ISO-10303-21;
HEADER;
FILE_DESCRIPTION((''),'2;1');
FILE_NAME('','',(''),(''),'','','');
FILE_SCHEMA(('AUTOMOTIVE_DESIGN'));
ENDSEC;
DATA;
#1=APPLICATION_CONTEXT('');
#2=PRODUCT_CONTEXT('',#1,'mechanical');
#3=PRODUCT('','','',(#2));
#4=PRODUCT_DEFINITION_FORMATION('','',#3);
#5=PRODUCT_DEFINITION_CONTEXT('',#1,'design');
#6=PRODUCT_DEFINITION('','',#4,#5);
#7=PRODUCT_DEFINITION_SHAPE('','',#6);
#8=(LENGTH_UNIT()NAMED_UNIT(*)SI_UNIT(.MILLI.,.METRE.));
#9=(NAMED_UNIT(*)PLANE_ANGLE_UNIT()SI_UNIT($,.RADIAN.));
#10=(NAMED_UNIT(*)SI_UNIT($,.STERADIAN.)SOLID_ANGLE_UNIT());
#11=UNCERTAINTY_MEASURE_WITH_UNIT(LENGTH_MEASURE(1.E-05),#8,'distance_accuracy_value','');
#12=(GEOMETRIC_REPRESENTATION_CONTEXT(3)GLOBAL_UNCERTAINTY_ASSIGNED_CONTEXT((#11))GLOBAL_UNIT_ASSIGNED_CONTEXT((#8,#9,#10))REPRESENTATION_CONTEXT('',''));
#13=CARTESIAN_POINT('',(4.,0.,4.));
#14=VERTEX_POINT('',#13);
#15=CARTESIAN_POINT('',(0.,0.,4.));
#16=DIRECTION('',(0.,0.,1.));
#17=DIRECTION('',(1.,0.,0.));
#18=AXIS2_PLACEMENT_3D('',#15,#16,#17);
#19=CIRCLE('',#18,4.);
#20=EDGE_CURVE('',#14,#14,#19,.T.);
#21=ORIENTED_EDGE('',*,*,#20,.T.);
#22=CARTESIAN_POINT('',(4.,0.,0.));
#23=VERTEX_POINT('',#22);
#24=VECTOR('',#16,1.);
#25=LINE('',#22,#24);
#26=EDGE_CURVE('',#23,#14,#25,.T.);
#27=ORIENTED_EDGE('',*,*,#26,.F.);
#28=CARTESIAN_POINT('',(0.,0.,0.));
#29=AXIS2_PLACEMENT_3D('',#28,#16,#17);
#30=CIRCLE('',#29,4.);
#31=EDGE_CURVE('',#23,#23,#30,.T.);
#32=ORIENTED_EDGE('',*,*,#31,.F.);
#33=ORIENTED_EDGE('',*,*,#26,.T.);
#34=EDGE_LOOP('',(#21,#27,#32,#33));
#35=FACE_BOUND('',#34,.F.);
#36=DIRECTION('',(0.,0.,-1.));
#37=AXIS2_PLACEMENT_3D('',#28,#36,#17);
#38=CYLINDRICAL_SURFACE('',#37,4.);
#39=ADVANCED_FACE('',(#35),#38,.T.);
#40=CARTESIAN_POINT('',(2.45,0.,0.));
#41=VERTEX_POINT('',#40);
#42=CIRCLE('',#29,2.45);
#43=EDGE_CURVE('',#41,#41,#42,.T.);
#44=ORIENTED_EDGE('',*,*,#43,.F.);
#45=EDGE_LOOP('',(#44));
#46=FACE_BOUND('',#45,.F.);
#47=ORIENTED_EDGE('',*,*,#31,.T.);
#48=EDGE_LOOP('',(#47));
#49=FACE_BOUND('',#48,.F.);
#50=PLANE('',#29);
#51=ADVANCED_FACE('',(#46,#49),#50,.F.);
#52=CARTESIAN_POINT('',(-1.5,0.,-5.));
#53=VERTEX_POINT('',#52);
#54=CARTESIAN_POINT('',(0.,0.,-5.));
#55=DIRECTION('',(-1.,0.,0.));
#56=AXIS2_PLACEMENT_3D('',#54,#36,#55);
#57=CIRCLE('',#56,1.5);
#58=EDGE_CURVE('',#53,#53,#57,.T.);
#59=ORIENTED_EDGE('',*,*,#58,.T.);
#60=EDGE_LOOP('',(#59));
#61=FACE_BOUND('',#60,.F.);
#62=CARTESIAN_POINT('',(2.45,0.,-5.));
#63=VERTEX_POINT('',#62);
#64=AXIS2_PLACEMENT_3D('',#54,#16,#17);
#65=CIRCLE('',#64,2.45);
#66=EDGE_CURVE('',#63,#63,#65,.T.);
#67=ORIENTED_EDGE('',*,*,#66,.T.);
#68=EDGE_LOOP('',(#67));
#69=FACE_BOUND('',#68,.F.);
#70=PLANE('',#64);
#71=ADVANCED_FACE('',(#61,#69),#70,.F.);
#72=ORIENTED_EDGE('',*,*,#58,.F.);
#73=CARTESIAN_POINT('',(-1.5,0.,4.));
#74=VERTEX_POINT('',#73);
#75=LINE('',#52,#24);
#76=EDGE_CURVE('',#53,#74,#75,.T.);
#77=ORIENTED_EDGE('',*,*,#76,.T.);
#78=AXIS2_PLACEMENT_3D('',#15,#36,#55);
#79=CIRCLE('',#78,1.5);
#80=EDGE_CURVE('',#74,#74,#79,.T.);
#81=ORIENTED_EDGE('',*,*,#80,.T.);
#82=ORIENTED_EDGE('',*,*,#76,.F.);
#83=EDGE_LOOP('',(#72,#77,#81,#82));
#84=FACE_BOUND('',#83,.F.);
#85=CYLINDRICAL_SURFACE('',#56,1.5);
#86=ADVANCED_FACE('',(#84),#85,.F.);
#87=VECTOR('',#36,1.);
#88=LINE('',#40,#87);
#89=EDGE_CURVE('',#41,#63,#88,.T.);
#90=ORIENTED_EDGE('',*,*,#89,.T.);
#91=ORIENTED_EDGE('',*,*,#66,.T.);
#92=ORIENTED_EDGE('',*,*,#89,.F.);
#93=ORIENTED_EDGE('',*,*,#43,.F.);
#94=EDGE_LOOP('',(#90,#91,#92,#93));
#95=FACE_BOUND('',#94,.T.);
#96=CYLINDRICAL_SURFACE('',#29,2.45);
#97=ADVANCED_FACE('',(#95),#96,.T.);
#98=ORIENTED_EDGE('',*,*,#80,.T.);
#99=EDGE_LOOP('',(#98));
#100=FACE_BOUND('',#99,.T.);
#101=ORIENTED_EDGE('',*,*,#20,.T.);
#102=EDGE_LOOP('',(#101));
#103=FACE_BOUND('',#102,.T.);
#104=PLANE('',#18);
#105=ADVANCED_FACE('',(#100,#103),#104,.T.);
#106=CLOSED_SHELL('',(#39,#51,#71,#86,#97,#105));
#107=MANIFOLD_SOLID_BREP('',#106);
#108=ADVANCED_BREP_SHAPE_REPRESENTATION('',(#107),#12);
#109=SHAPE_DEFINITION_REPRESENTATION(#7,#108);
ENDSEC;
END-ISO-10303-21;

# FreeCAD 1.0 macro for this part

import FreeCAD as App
import Part
import Sketcher

V = App.Vector

doc = App.newDocument("Part")
body = doc.addObject("PartDesign::Body", "Body")

sketch1 = body.newObject("Sketcher::SketchObject", "Sketch")
sketch1.AttachmentSupport = (doc.getObject("XY_Plane"), [""])
sketch1.MapMode = "FlatFace"
sketch1.addGeometry(Part.Circle(V(0, 0, 0), V(0, 0, 1), 4), False)
sketch1.addConstraint([
    Sketcher.Constraint("Coincident", 0, 3, -1, 1),
    Sketcher.Constraint("Diameter", 0, 8.0),
])
pad1 = body.newObject("PartDesign::Pad", "Pad")
pad1.Profile = sketch1
pad1.Length = 4

sketch2 = body.newObject("Sketcher::SketchObject", "Sketch001")
sketch2.AttachmentSupport = (doc.getObject("XY_Plane"), [""])
sketch2.MapMode = "FlatFace"
sketch2.addGeometry(Part.Circle(V(0, 0, 0), V(0, 0, 1), 2.45), False)
sketch2.addConstraint([
    Sketcher.Constraint("Coincident", 0, 3, -1, 1),
    Sketcher.Constraint("Diameter", 0, 4.9),
])
pad2 = body.newObject("PartDesign::Pad", "Pad001")
pad2.Profile = sketch2
pad2.Length = 5
pad2.Reversed = True

sketch3 = body.newObject("Sketcher::SketchObject", "Sketch002")
sketch3.AttachmentSupport = (doc.getObject("XY_Plane"), [""])
sketch3.MapMode = "FlatFace"
sketch3.AttachmentOffset = App.Placement(V(0, 0, -5), App.Rotation())
sketch3.addGeometry(Part.Circle(V(0, 0, 0), V(0, 0, 1), 1.5), False)
sketch3.addConstraint([
    Sketcher.Constraint("Coincident", 0, 3, -1, 1),
    Sketcher.Constraint("Diameter", 0, 3.0),
])
pocket1 = body.newObject("PartDesign::Pocket", "Pocket")
pocket1.Profile = sketch3
pocket1.Type = "ThroughAll"
pocket1.Reversed = True

doc.recompute()
